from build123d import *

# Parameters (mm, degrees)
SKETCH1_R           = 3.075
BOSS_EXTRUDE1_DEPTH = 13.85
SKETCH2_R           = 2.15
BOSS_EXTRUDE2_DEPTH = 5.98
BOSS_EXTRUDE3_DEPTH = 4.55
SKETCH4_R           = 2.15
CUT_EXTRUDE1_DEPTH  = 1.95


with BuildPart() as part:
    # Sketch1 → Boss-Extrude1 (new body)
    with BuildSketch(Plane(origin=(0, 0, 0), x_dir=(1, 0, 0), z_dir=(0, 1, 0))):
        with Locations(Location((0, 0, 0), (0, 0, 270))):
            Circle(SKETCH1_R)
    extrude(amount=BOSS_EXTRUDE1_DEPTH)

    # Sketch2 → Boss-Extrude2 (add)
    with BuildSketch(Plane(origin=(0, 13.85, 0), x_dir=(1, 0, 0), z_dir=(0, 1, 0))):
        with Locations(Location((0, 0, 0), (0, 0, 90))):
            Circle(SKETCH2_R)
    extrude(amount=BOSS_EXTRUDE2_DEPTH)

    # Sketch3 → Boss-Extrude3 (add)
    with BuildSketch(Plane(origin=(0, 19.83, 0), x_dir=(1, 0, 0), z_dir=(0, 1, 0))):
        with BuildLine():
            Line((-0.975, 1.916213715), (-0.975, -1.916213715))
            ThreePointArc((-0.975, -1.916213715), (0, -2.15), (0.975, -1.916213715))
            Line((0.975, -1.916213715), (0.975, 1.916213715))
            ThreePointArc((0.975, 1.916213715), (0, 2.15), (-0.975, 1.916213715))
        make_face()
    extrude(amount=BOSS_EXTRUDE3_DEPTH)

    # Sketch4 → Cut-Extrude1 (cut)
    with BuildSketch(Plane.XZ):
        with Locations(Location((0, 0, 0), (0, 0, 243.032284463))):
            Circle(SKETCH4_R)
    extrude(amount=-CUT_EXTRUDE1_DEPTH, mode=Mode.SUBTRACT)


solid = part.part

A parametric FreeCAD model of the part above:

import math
import FreeCAD as App
import Part
import Sketcher
Q = App.Units.Quantity

doc = App.newDocument("Part")
params = doc.addObject("Spreadsheet::Sheet", "Params")
for row, (alias, value) in enumerate([
    ("sketch1_diameter", "6.15 mm"),
    ("pad1_length", "13.85 mm"),
    ("sketch2_diameter", "4.3 mm"),
    ("pad2_length", "5.98 mm"),
    ("sketch3_radius", "2.15 mm"),
    ("pad3_length", "4.55 mm"),
    ("sketch4_diameter", "4.3 mm"),
    ("pocket1_length", "1.95 mm"),
], start=1):
    params.set(f"A{row}", alias)
    params.set(f"B{row}", "=" + value)
    params.setAlias(f"B{row}", alias)

body = doc.addObject("PartDesign::Body", "Body")

sketch1 = doc.addObject("Sketcher::SketchObject", "Sketch")
body.addObject(sketch1)
sketch1.AttachmentSupport = (doc.XZ_Plane, [""])
sketch1.MapMode = "FlatFace"
sketch1.addGeometry(Part.Circle(App.Vector(0, 0, 0), App.Vector(0, 0, 1), 3.1), False)
sketch1.addConstraint([
    Sketcher.Constraint("Coincident", 0, 3, -1, 1),
    Sketcher.Constraint("Diameter", 0, Q("6.15 mm")),
])
sketch1.setExpression("Constraints[1]", "Params.sketch1_diameter")
pad1 = doc.addObject("PartDesign::Pad", "Pad")
body.addObject(pad1)
pad1.Profile = sketch1
pad1.setExpression("Length", "Params.pad1_length")
pad1.Reversed = True

sketch2 = doc.addObject("Sketcher::SketchObject", "Sketch001")
body.addObject(sketch2)
sketch2.AttachmentSupport = (doc.XZ_Plane, [""])
sketch2.MapMode = "FlatFace"
sketch2.AttachmentOffset = App.Placement(App.Vector(0, 0, -13.85), App.Rotation())
sketch2.addGeometry(Part.Circle(App.Vector(0, 0, 0), App.Vector(0, 0, 1), 2.1), False)
sketch2.addConstraint([
    Sketcher.Constraint("Coincident", 0, 3, -1, 1),
    Sketcher.Constraint("Diameter", 0, Q("4.3 mm")),
])
sketch2.setExpression("Constraints[1]", "Params.sketch2_diameter")
pad2 = doc.addObject("PartDesign::Pad", "Pad001")
body.addObject(pad2)
pad2.Profile = sketch2
pad2.setExpression("Length", "Params.pad2_length")
pad2.Reversed = True

sketch3 = doc.addObject("Sketcher::SketchObject", "Sketch002")
body.addObject(sketch3)
sketch3.AttachmentSupport = (doc.XZ_Plane, [""])
sketch3.MapMode = "FlatFace"
sketch3.AttachmentOffset = App.Placement(App.Vector(0, 0, -19.83), App.Rotation())
sketch3.addGeometry([
    Part.LineSegment(App.Vector(-1, -1.9, 0), App.Vector(-1, 1.9, 0)),
    Part.ArcOfCircle(Part.Circle(App.Vector(0, 0, 0), App.Vector(0, 0, 1), 2.2), math.radians(63), math.radians(117)),
    Part.LineSegment(App.Vector(1, 1.9, 0), App.Vector(1, -1.9, 0)),
    Part.ArcOfCircle(Part.Circle(App.Vector(0, 0, 0), App.Vector(0, 0, 1), 2.2), math.radians(-117), math.radians(-63)),
], False)
sketch3.addConstraint([
    Sketcher.Constraint("Coincident", 0, 2, 1, 2),
    Sketcher.Constraint("Coincident", 1, 1, 2, 1),
    Sketcher.Constraint("Coincident", 2, 2, 3, 2),
    Sketcher.Constraint("Coincident", 3, 1, 0, 1),
    Sketcher.Constraint("Vertical", 0),
    Sketcher.Constraint("Vertical", 2),
    Sketcher.Constraint("Coincident", 1, 3, -1, 1),
    Sketcher.Constraint("Coincident", 3, 3, -1, 1),
    Sketcher.Constraint("Equal", 1, 3),
    Sketcher.Constraint("Horizontal", 0, 2, 1, 1),
    Sketcher.Constraint("Radius", 1, Q("2.15 mm")),
    Sketcher.Constraint("DistanceX", 0, 2, 1, 1, Q("1.95 mm")),
])
sketch3.setExpression("Constraints[10]", "Params.sketch3_radius")
pad3 = doc.addObject("PartDesign::Pad", "Pad002")
body.addObject(pad3)
pad3.Profile = sketch3
pad3.setExpression("Length", "Params.pad3_length")
pad3.Reversed = True

sketch4 = doc.addObject("Sketcher::SketchObject", "Sketch003")
body.addObject(sketch4)
sketch4.AttachmentSupport = (doc.XZ_Plane, [""])
sketch4.MapMode = "FlatFace"
sketch4.addGeometry(Part.Circle(App.Vector(0, 0, 0), App.Vector(0, 0, 1), 2.1), False)
sketch4.addConstraint([
    Sketcher.Constraint("Coincident", 0, 3, -1, 1),
    Sketcher.Constraint("Diameter", 0, Q("4.3 mm")),
])
sketch4.setExpression("Constraints[1]", "Params.sketch4_diameter")
pocket1 = doc.addObject("PartDesign::Pocket", "Pocket")
body.addObject(pocket1)
pocket1.Profile = sketch4
pocket1.setExpression("Length", "Params.pocket1_length")

doc.recompute()
